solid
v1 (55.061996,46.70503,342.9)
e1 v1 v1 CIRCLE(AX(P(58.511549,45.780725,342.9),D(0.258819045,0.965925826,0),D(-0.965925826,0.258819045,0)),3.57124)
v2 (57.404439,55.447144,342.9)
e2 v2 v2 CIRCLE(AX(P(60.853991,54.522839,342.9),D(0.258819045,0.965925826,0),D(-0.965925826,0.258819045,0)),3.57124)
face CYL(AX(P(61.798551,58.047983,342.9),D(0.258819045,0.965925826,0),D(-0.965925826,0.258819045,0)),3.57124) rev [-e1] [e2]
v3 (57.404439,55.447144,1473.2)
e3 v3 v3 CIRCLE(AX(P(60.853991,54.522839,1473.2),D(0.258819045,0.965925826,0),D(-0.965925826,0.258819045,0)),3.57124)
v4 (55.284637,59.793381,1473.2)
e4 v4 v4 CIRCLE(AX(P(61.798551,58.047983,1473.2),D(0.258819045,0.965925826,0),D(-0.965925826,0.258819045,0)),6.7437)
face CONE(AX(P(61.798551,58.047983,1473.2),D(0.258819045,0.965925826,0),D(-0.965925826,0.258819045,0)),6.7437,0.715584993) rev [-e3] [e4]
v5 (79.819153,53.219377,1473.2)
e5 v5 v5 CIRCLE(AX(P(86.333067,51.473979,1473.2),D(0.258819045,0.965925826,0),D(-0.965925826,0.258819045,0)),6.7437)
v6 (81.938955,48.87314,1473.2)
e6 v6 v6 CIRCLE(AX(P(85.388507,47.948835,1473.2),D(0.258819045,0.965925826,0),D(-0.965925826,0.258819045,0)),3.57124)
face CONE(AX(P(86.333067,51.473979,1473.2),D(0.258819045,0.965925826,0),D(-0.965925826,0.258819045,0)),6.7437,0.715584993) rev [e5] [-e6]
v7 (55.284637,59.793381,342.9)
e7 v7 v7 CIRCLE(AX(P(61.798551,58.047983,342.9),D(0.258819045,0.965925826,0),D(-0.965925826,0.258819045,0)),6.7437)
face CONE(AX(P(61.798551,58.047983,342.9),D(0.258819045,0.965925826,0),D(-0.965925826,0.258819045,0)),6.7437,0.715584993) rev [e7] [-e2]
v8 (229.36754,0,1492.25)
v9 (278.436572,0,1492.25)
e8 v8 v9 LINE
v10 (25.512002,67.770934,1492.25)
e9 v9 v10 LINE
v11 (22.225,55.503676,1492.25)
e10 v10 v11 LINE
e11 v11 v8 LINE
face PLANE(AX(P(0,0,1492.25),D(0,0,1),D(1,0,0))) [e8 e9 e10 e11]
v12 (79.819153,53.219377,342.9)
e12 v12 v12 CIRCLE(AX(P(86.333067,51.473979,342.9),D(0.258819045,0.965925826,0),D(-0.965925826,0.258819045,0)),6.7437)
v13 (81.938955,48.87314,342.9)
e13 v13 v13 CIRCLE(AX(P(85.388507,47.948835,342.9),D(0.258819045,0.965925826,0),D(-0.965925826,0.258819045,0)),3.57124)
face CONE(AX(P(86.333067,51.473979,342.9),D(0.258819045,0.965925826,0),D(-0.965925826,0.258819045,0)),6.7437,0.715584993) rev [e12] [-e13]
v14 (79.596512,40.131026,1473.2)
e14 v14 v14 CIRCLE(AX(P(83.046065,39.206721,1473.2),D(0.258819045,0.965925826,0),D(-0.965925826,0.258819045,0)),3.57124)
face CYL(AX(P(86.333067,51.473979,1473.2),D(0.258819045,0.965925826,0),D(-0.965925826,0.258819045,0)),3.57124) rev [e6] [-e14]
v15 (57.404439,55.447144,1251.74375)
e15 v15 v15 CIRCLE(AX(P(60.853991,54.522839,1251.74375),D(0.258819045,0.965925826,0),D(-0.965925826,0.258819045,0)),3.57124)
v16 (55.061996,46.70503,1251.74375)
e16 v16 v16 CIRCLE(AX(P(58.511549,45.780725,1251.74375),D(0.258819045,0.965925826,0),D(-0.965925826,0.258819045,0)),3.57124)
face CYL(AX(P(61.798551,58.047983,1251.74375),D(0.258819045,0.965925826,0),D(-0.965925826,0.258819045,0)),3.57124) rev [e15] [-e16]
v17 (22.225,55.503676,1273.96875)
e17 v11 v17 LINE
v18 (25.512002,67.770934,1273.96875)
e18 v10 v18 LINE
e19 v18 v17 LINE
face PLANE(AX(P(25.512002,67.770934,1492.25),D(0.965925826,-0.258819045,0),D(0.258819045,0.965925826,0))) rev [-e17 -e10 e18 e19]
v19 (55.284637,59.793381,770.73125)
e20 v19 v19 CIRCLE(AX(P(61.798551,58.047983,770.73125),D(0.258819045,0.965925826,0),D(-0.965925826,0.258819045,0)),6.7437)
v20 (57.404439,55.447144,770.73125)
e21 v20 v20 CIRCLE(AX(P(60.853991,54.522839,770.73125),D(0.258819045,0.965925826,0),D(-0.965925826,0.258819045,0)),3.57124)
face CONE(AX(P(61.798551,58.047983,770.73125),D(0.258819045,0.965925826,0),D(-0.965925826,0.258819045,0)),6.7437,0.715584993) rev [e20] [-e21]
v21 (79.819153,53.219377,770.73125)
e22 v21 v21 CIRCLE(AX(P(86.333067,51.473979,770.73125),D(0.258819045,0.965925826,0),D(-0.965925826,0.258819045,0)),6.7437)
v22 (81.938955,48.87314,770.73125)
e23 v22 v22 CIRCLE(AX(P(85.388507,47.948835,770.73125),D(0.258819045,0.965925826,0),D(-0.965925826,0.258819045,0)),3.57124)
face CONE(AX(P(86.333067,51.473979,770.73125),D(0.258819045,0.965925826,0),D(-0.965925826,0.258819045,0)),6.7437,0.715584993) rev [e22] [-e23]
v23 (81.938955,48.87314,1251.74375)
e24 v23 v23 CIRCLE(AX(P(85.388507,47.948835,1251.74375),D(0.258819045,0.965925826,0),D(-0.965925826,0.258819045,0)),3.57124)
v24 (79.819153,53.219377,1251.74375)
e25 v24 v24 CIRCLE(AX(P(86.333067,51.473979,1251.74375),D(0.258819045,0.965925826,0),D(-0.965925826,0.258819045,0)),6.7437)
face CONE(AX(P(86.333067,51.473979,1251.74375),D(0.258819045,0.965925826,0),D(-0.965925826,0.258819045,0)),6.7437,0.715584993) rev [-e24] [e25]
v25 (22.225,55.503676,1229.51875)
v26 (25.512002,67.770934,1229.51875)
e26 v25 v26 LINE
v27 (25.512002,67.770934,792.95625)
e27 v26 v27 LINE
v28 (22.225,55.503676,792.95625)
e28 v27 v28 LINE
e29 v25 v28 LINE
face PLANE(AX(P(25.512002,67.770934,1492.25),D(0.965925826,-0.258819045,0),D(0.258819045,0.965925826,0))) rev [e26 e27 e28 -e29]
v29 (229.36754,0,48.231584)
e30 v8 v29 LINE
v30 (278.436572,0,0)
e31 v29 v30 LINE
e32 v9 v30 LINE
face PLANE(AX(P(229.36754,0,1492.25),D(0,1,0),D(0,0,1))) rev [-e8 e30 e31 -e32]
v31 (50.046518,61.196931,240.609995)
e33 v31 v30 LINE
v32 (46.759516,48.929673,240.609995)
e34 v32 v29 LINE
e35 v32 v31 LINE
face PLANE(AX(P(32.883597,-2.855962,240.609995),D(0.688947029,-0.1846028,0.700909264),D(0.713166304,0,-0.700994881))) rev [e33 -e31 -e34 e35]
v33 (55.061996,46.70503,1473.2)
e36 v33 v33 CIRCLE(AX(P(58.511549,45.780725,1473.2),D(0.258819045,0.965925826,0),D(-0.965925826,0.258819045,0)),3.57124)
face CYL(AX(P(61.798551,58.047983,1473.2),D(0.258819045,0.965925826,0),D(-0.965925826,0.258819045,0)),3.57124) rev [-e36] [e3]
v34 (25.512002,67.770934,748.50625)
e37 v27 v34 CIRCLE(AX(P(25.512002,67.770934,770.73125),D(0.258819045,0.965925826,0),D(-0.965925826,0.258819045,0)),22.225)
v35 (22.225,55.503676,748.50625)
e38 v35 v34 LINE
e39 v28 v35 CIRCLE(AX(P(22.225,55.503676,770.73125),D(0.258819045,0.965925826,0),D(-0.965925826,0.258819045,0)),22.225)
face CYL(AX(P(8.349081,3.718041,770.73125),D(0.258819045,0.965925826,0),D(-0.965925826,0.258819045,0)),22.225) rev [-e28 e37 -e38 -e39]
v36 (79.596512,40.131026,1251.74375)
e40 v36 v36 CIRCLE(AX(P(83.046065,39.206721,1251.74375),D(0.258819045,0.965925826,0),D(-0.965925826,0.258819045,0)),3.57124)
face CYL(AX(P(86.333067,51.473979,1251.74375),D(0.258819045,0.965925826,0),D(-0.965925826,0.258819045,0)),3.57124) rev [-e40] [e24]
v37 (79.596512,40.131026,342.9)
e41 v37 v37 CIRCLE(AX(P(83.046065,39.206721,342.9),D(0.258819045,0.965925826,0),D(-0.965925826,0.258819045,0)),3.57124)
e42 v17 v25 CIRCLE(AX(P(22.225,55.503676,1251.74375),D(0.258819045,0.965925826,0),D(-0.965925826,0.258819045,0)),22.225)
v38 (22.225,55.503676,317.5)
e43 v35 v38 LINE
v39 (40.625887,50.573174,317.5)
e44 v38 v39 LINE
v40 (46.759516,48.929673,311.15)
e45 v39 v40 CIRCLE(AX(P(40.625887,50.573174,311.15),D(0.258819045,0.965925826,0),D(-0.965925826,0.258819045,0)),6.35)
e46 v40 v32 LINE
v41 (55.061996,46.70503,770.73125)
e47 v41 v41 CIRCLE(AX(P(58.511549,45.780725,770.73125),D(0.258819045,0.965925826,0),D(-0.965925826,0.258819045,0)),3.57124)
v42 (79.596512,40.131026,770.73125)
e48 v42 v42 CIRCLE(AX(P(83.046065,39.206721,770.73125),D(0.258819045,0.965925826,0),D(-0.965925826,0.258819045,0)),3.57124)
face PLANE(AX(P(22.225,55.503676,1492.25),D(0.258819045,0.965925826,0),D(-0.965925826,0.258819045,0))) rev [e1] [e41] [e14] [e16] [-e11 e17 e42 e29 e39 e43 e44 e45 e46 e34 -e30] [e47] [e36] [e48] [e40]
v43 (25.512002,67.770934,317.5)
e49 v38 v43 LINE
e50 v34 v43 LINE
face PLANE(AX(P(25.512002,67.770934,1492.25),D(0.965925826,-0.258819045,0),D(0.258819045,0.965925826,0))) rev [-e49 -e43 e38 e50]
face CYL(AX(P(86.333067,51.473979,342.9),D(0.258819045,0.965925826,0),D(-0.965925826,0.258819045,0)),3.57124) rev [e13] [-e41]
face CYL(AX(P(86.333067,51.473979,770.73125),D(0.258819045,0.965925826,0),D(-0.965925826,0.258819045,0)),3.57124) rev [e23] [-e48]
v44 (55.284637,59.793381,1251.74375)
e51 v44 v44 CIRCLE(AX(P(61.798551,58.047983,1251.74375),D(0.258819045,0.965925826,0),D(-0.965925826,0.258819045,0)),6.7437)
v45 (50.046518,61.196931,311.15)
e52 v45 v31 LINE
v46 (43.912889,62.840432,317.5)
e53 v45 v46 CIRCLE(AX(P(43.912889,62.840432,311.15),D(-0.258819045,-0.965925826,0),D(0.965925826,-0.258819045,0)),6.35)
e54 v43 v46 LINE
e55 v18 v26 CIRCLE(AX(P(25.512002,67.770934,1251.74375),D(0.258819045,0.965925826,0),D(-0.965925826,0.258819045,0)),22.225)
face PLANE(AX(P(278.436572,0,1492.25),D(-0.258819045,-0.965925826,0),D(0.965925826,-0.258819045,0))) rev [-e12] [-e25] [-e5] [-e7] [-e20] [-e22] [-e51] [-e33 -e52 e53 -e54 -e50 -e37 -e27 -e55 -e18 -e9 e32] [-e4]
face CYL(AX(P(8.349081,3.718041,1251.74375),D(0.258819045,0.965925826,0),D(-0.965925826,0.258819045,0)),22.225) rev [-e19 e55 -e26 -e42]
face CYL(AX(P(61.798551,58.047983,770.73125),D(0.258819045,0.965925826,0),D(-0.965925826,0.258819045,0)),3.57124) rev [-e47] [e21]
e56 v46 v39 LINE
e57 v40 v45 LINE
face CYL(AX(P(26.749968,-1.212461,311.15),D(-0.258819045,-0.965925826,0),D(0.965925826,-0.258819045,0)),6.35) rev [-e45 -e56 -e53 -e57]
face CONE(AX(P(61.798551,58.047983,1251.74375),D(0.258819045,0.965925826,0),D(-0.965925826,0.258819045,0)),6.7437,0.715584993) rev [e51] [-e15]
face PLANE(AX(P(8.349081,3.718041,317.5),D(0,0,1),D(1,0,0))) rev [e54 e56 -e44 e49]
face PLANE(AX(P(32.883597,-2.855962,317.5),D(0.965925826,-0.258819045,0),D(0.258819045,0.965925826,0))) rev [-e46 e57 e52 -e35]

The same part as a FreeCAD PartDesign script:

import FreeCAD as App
import Part
import Sketcher
from FreeCAD import Vector
Q = App.Units.Quantity


def edges_at(feature, points):
    """Names of the edges that pass closest to the given points."""
    edges = feature.Shape.Edges
    near = lambda p: min(range(len(edges)), key=lambda i: edges[i].distToShape(Part.Vertex(*p))[0])
    return sorted({f"Edge{near(p) + 1}" for p in points})


def add_polygon(sketch, points):
    """Adds a closed chain of lines whose ends are joined by coincident constraints."""
    first, n = sketch.GeometryCount, len(points)
    for a, b in zip(points, points[1:] + points[:1]):
        sketch.addGeometry(Part.LineSegment(App.Vector(*a, 0), App.Vector(*b, 0)), False)
    for i in range(n):
        sketch.addConstraint(Sketcher.Constraint("Coincident", first + i, 2, first + (i + 1) % n, 1))

doc = App.newDocument("Part")
body = doc.addObject("PartDesign::Body", "Body")

# Sketch on XY plane
sketch1 = body.newObject("Sketcher::SketchObject", "Sketch")
sketch1.AttachmentSupport = (doc.getObject("XY_Plane"), [""])
sketch1.MapMode = "FlatFace"
add_polygon(sketch1, [(22, 56), (229, 0), (278, 0), (26, 68)])  # lines 0-3
sketch1.addConstraint([
    Sketcher.Constraint("Horizontal", 1),
    Sketcher.Constraint("PointOnObject", 0, 2, -1),
    Sketcher.Constraint("Parallel", 0, 2),
    Sketcher.Constraint("Perpendicular", 2, 3),
    Sketcher.Constraint("Angle", 0, Q("-15 deg")),
    Sketcher.Constraint("Distance", 3, Q("0.5 in")),
    Sketcher.Constraint("DistanceX", -1, 1, 3, 2, Q("0.875 in")),
    Sketcher.Constraint("Distance", 0, Q("214.449738 mm")),
])
pad1 = body.newObject("PartDesign::Pad", "Pad")
pad1.Profile = sketch1
pad1.Length = Q("58.75 in")

# Sketch on an angled plane
sketch2 = body.newObject("Sketcher::SketchObject", "Sketch001")
sketch2.Placement = App.Placement(Vector(18.651714, 69.609143, 0), App.Rotation(Vector(0.965925826, -0.258819045, 0), Vector(0, 0, -0.999999999), Vector(0.258819045, 0.965925826, 0), "ZXY"))
sketch2.addGeometry([
    Part.Circle(Vector(44.7, -1251.7, 0), Vector(0, 0, 1), 3.6),  # 0
    Part.Circle(Vector(70.1, -1251.7, 0), Vector(0, 0, 1), 3.6),  # 1
    Part.Circle(Vector(44.7, -770.7, 0), Vector(0, 0, 1), 3.6),  # 2
    Part.Circle(Vector(70.1, -770.7, 0), Vector(0, 0, 1), 3.6),  # 3
    Part.Circle(Vector(44.7, -1473.2, 0), Vector(0, 0, 1), 3.6),  # 4
    Part.Circle(Vector(70.1, -1473.2, 0), Vector(0, 0, 1), 3.6),  # 5
    Part.Circle(Vector(44.7, -342.9, 0), Vector(0, 0, 1), 3.6),  # 6
    Part.Circle(Vector(70.1, -342.9, 0), Vector(0, 0, 1), 3.6),  # 7
], False)
sketch2.addConstraint([
    Sketcher.Constraint("Equal", 0, 1),
    Sketcher.Constraint("Equal", 1, 2),
    Sketcher.Constraint("Equal", 2, 3),
    Sketcher.Constraint("Equal", 3, 4),
    Sketcher.Constraint("Equal", 4, 5),
    Sketcher.Constraint("Equal", 5, 6),
    Sketcher.Constraint("Equal", 6, 7),
    Sketcher.Constraint("Horizontal", 0, 3, 1, 3),
    Sketcher.Constraint("Horizontal", 2, 3, 3, 3),
    Sketcher.Constraint("Horizontal", 4, 3, 5, 3),
    Sketcher.Constraint("Horizontal", 6, 3, 7, 3),
    Sketcher.Constraint("Vertical", 0, 3, 2, 3),
    Sketcher.Constraint("Vertical", 1, 3, 3, 3),
    Sketcher.Constraint("Vertical", 2, 3, 4, 3),
    Sketcher.Constraint("Vertical", 3, 3, 5, 3),
    Sketcher.Constraint("Vertical", 4, 3, 6, 3),
    Sketcher.Constraint("Vertical", 5, 3, 7, 3),
    Sketcher.Constraint("DistanceY", 4, 3, -1, 1, Q("57.9999999 in")),
    Sketcher.Constraint("DistanceX", 0, 3, 1, 3, Q("1 in")),
    Sketcher.Constraint("Diameter", 0, Q("0.2812 in")),
    Sketcher.Constraint("DistanceY", 6, 3, -1, 1, Q("13.5 in")),
    Sketcher.Constraint("DistanceY", 0, 3, -1, 1, Q("49.2812499 in")),
    Sketcher.Constraint("DistanceY", 2, 3, -1, 1, Q("30.34375 in")),
    Sketcher.Constraint("DistanceX", -1, 1, 0, 3, Q("44.668893 mm")),
])
doc.recompute()
hole = body.newObject("PartDesign::Hole", "Hole")
hole.Profile = sketch2
hole.ThreadType = "None"
hole.Diameter = Q("0.2812 in")
hole.DepthType = "ThroughAll"
hole.HoleCutType = "Countersink"
hole.HoleCutDiameter = Q("0.531 in")
hole.HoleCutCountersinkAngle = 82

# Sketch on an angled plane
sketch3 = body.newObject("Sketcher::SketchObject", "Sketch002")
sketch3.Placement = App.Placement(Vector(18.651714, 69.609143, 0), App.Rotation(Vector(0.965925826, -0.258819045, 0), Vector(0, 0, -0.999999999), Vector(0.258819045, 0.965925826, 0), "ZXY"))
sketch3.addGeometry([
    Part.Circle(Vector(7, -771, 0), Vector(0, 0, 1), 22),
    Part.Circle(Vector(7, -1252, 0), Vector(0, 0, 1), 22),
], False)
sketch3.addConstraint([
    Sketcher.Constraint("Equal", 0, 1),
    Sketcher.Constraint("Vertical", 0, 3, 1, 3),
    Sketcher.Constraint("Diameter", 0, Q("1.75 in")),
    Sketcher.Constraint("DistanceY", 0, 3, -1, 1, Q("30.34375 in")),
    Sketcher.Constraint("DistanceY", 1, 3, -1, 1, Q("49.2812499 in")),
    Sketcher.Constraint("DistanceX", -1, 1, 0, 3, Q("7.102293 mm")),
])
pocket1 = body.newObject("PartDesign::Pocket", "Pocket")
pocket1.Profile = sketch3
pocket1.Type = "ThroughAll"

# Sketch on an angled plane
sketch4 = body.newObject("Sketcher::SketchObject", "Sketch003")
sketch4.Placement = App.Placement(Vector(18.651714, 69.609143, 0), App.Rotation(Vector(0.965925826, -0.258819045, 0), Vector(0, 0, -0.999999999), Vector(0.258819045, 0.965925826, 0), "ZXY"))
add_polygon(sketch4, [(7, 0), (7, -317), (33, -317), (33, -241), (269, 0)])  # lines 0-4
sketch4.addConstraint([
    Sketcher.Constraint("Vertical", 0),
    Sketcher.Constraint("Horizontal", 1),
    Sketcher.Constraint("Vertical", 2),
    Sketcher.Constraint("Horizontal", 4),
    Sketcher.Constraint("PointOnObject", 3, 2, -1),
    Sketcher.Constraint("DistanceX", 1, 1, 1, 2, Q("1 in")),
    Sketcher.Constraint("DistanceY", 0, 2, 0, 1, Q("12.5 in")),
    Sketcher.Constraint("Angle", 3, Q("45.5 deg")),
    Sketcher.Constraint("DistanceX", 4, 2, 4, 1, Q("261.846783 mm")),
    Sketcher.Constraint("DistanceX", -1, 1, 0, 2, Q("7.102293 mm")),
])
pocket2 = body.newObject("PartDesign::Pocket", "Pocket001")
pocket2.Profile = sketch4
pocket2.Type = "ThroughAll"
doc.recompute()

fillet = body.newObject("PartDesign::Fillet", "Fillet")
fillet.Base = (pocket2, edges_at(pocket2, [(48.403, 55.063, 317.5)]))
fillet.Radius = Q("0.25 in")

doc.recompute()
